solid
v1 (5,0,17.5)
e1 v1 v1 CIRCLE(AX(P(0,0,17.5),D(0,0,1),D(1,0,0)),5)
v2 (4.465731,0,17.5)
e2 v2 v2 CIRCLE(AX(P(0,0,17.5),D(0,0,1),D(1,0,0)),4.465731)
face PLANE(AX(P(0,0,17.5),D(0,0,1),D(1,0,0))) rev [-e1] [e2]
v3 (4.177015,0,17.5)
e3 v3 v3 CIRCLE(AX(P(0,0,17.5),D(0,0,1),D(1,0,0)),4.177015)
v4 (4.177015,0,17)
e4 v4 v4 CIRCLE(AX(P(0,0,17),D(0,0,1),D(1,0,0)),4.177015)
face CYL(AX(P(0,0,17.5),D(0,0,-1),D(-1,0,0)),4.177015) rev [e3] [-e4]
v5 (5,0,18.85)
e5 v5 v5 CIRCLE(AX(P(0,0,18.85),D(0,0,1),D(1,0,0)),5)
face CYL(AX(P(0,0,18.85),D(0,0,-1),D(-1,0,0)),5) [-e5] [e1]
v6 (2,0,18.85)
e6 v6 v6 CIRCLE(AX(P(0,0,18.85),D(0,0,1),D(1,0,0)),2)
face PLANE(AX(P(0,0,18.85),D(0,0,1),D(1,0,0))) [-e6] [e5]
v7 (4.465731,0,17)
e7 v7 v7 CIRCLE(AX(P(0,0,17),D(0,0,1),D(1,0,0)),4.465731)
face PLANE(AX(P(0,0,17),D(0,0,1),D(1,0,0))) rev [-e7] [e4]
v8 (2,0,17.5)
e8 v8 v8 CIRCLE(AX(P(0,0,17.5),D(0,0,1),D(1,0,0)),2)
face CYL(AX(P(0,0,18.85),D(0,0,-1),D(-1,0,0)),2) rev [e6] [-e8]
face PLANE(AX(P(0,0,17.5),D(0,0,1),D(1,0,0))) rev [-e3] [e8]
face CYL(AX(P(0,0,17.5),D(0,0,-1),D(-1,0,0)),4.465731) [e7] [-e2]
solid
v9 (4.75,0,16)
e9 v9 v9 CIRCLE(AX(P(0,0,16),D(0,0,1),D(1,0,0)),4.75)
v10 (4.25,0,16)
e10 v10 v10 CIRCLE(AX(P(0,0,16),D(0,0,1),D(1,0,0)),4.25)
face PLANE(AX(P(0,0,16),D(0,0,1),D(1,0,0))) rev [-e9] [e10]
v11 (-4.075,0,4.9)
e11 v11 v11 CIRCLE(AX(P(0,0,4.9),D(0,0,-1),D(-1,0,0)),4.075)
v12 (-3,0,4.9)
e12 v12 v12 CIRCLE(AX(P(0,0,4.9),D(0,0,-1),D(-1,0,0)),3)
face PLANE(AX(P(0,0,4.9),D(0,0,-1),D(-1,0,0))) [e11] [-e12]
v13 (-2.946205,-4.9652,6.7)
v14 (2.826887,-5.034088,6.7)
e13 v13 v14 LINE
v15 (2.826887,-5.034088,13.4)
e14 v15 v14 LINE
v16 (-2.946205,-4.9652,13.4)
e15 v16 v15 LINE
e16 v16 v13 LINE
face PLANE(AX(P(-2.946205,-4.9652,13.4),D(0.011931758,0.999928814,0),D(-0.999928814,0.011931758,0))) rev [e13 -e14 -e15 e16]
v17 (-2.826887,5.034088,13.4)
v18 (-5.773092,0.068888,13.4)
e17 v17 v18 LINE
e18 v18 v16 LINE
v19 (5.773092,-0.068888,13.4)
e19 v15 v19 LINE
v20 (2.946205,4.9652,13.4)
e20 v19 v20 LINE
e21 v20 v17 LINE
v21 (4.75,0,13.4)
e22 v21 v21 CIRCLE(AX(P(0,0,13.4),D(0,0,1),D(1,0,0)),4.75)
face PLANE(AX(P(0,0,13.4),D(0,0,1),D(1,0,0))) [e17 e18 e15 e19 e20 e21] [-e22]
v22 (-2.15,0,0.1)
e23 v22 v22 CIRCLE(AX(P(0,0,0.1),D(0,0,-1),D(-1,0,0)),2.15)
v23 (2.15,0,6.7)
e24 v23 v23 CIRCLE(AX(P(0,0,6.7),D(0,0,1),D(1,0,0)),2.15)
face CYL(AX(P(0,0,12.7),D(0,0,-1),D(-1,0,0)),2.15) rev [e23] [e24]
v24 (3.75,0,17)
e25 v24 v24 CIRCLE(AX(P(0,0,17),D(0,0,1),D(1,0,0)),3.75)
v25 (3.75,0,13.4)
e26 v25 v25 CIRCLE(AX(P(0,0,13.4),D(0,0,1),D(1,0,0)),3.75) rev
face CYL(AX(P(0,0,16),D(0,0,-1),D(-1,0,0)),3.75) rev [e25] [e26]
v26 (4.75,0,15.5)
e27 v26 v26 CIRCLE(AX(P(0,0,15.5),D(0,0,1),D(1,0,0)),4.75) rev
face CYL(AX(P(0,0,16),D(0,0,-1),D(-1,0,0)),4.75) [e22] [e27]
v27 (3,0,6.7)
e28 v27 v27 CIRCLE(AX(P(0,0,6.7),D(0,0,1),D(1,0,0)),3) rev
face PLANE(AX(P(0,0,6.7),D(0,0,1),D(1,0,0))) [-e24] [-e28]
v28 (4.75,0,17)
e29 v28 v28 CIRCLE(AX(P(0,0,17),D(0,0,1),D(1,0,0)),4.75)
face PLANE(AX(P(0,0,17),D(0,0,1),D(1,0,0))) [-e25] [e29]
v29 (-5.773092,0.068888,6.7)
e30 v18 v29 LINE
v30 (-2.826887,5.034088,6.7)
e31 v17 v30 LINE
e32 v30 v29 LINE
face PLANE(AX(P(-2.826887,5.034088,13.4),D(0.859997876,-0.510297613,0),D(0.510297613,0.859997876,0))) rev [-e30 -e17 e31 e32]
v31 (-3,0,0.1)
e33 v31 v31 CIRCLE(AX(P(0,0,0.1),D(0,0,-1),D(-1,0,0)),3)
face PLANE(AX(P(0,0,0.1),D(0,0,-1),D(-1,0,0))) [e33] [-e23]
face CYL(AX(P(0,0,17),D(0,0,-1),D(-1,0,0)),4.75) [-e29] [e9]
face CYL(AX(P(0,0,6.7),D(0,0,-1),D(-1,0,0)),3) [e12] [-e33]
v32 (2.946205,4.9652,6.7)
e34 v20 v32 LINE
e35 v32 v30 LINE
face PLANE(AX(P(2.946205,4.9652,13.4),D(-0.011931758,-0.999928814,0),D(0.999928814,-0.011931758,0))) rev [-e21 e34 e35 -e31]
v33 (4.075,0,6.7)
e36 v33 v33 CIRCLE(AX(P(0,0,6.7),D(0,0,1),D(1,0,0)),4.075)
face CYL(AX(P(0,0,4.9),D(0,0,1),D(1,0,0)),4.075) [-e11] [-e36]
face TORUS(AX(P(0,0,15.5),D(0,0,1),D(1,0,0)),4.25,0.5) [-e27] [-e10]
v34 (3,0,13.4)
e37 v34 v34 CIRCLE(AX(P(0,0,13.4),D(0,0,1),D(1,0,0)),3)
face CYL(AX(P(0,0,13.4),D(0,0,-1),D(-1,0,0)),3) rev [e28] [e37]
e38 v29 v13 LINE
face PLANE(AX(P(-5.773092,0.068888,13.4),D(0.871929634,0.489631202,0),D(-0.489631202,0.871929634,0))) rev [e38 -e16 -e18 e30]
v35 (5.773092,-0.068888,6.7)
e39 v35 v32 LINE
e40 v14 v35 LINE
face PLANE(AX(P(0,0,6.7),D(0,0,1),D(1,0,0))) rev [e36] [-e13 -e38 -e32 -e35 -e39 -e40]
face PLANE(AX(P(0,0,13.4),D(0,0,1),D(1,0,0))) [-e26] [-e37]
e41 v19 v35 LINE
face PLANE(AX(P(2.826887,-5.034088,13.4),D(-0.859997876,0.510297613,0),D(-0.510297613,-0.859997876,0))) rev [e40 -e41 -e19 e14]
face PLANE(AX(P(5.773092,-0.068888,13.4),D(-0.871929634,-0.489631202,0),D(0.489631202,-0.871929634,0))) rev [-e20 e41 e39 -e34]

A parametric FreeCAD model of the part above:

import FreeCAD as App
import Part
import Sketcher


def edges_at(feature, points):
    """Names of the edges that pass closest to the given points."""
    edges = feature.Shape.Edges
    near = lambda p: min(range(len(edges)), key=lambda i: edges[i].distToShape(Part.Vertex(*p))[0])
    return sorted({f"Edge{near(p) + 1}" for p in points})


def add_polygon(sketch, points):
    """Adds a closed chain of lines whose ends are joined by coincident constraints."""
    first, n = sketch.GeometryCount, len(points)
    for a, b in zip(points, points[1:] + points[:1]):
        sketch.addGeometry(Part.LineSegment(App.Vector(*a, 0), App.Vector(*b, 0)), False)
    for i in range(n):
        sketch.addConstraint(Sketcher.Constraint("Coincident", first + i, 2, first + (i + 1) % n, 1))

doc = App.newDocument("Part")
params = doc.addObject("Spreadsheet::Sheet", "Params")
for row, (alias, value) in enumerate([
    ("sketch1_diameter", "6 mm"),
    ("pad1_length", "6.7 mm"),
    ("sketch2_diameter", "6.4 mm"),
    ("pocket1_length", "0.1 mm"),
    ("sketch3_diameter", "4.3 mm"),
    ("pocket2_length", "12.6 mm"),
    ("sketch4_diameter", "6 mm"),
    ("pad2_length", "6.7 mm"),
    ("sketch5_diameter", "9.5 mm"),
    ("sketch5_diameter2", "7.5 mm"),
    ("pad3_length", "2.6 mm"),
    ("fillet_radius", "0.5 mm"),
    ("sketch6_diameter", "9.5 mm"),
    ("sketch6_diameter2", "7.5 mm"),
    ("pad4_length", "1 mm"),
    ("pad5_length", "0.5 mm"),
    ("sketch8_diameter", "10 mm"),
    ("sketch8_diameter2", "4 mm"),
    ("pad6_length", "1.35 mm"),
    ("sketch9_diameter", "6 mm"),
    ("sketch9_diameter2", "8.15 mm"),
    ("pad7_length", "1.8 mm"),
], start=1):
    params.set(f"A{row}", alias)
    params.set(f"B{row}", "=" + value)
    params.setAlias(f"B{row}", alias)

body = doc.addObject("PartDesign::Body", "Body")

# Sketch on XY plane
sketch1 = doc.addObject("Sketcher::SketchObject", "Sketch")
body.addObject(sketch1)
sketch1.AttachmentSupport = (doc.XY_Plane, [""])
sketch1.MapMode = "FlatFace"
sketch1.addGeometry(Part.Circle(App.Vector(0, 0, 0), App.Vector(0, 0, 1), 3), False)
sketch1.addConstraint([
    Sketcher.Constraint("Coincident", 0, 3, -1, 1),
    Sketcher.Constraint("Diameter", 0, 6.0),
])
sketch1.setExpression("Constraints[1]", "Params.sketch1_diameter")
pad1 = doc.addObject("PartDesign::Pad", "Pad")
body.addObject(pad1)
pad1.Profile = sketch1
pad1.setExpression("Length", "Params.pad1_length")

# Sketch on XY plane
sketch2 = doc.addObject("Sketcher::SketchObject", "Sketch001")
body.addObject(sketch2)
sketch2.AttachmentSupport = (doc.XY_Plane, [""])
sketch2.MapMode = "FlatFace"
sketch2.addGeometry(Part.Circle(App.Vector(0, 0, 0), App.Vector(0, 0, 1), 3.2), False)
sketch2.addConstraint([
    Sketcher.Constraint("Coincident", 0, 3, -1, 1),
    Sketcher.Constraint("Diameter", 0, 6.4),
])
sketch2.setExpression("Constraints[1]", "Params.sketch2_diameter")
pocket1 = doc.addObject("PartDesign::Pocket", "Pocket")
body.addObject(pocket1)
pocket1.Profile = sketch2
pocket1.setExpression("Length", "Params.pocket1_length")
pocket1.Reversed = True

# Sketch on XY plane
sketch3 = doc.addObject("Sketcher::SketchObject", "Sketch002")
body.addObject(sketch3)
sketch3.AttachmentSupport = (doc.XY_Plane, [""])
sketch3.MapMode = "FlatFace"
sketch3.AttachmentOffset = App.Placement(App.Vector(0, 0, 0.1), App.Rotation())
sketch3.addGeometry(Part.Circle(App.Vector(0, 0, 0), App.Vector(0, 0, 1), 2.1), False)
sketch3.addConstraint([
    Sketcher.Constraint("Coincident", 0, 3, -1, 1),
    Sketcher.Constraint("Diameter", 0, 4.3),
])
sketch3.setExpression("Constraints[1]", "Params.sketch3_diameter")
pocket2 = doc.addObject("PartDesign::Pocket", "Pocket001")
body.addObject(pocket2)
pocket2.Profile = sketch3
pocket2.setExpression("Length", "Params.pocket2_length")
pocket2.Reversed = True
body2 = doc.addObject("PartDesign::Body", "Body001")

# Sketch on XY plane
sketch4 = doc.addObject("Sketcher::SketchObject", "Sketch003")
body2.addObject(sketch4)
sketch4.AttachmentSupport = (doc.getObject("XY_Plane001"), [""])
sketch4.MapMode = "FlatFace"
sketch4.AttachmentOffset = App.Placement(App.Vector(0, 0, 6.7), App.Rotation())
add_polygon(sketch4, [(2.8, -5), (5.8, -0.1), (2.9, 5), (-2.8, 5), (-5.8, 0.1), (-2.9, -5)])  # lines 0-5
sketch4.addGeometry(Part.Circle(App.Vector(0, 0, 0), App.Vector(0, 0, 1), 3), False)  # 6
sketch4.addConstraint([
    Sketcher.Constraint("Coincident", 6, 3, -1, 1),
    Sketcher.Constraint("Symmetric", 0, 2, 3, 2, -1, 1),
    Sketcher.Constraint("Symmetric", 1, 2, 4, 2, -1, 1),
    Sketcher.Constraint("Symmetric", 2, 2, 5, 2, -1, 1),
    Sketcher.Constraint("Equal", 0, 1),
    Sketcher.Constraint("Equal", 1, 2),
    Sketcher.Constraint("Diameter", 6, 6.0),
    Sketcher.Constraint("DistanceY", -1, 1, 1, 2, 4.9652),
    Sketcher.Constraint("DistanceY", 3, 2, 2, 2, 4.9652),
    Sketcher.Constraint("DistanceX", -1, 1, 0, 2, 5.773092),
    Sketcher.Constraint("DistanceY", 0, 2, -1, 1, 0.068888),
])
sketch4.setExpression("Constraints[12]", "Params.sketch4_diameter")
pad2 = doc.addObject("PartDesign::Pad", "Pad001")
body2.addObject(pad2)
pad2.Profile = sketch4
pad2.setExpression("Length", "Params.pad2_length")

# Sketch on XY plane
sketch5 = doc.addObject("Sketcher::SketchObject", "Sketch004")
body2.addObject(sketch5)
sketch5.AttachmentSupport = (doc.getObject("XY_Plane001"), [""])
sketch5.MapMode = "FlatFace"
sketch5.AttachmentOffset = App.Placement(App.Vector(0, 0, 13.4), App.Rotation())
sketch5.addGeometry([
    Part.Circle(App.Vector(0, 0, 0), App.Vector(0, 0, 1), 4.8),
    Part.Circle(App.Vector(0, 0, 0), App.Vector(0, 0, 1), 3.8),
], False)
sketch5.addConstraint([
    Sketcher.Constraint("Coincident", 0, 3, -1, 1),
    Sketcher.Constraint("Coincident", 1, 3, -1, 1),
    Sketcher.Constraint("Diameter", 0, 9.5),
    Sketcher.Constraint("Diameter", 1, 7.5),
])
sketch5.setExpression("Constraints[2]", "Params.sketch5_diameter")
sketch5.setExpression("Constraints[3]", "Params.sketch5_diameter2")
pad3 = doc.addObject("PartDesign::Pad", "Pad002")
body2.addObject(pad3)
pad3.Profile = sketch5
pad3.setExpression("Length", "Params.pad3_length")
doc.recompute()

fillet = doc.addObject("PartDesign::Fillet", "Fillet")
body2.addObject(fillet)
fillet.Base = (pad3, edges_at(pad3, [(-4.75, 0, 16)]))
fillet.setExpression("Radius", "Params.fillet_radius")

# Sketch on XY plane
sketch6 = doc.addObject("Sketcher::SketchObject", "Sketch005")
body2.addObject(sketch6)
sketch6.AttachmentSupport = (doc.getObject("XY_Plane001"), [""])
sketch6.MapMode = "FlatFace"
sketch6.AttachmentOffset = App.Placement(App.Vector(0, 0, 16), App.Rotation())
sketch6.addGeometry([
    Part.Circle(App.Vector(0, 0, 0), App.Vector(0, 0, 1), 4.8),
    Part.Circle(App.Vector(0, 0, 0), App.Vector(0, 0, 1), 3.8),
], False)
sketch6.addConstraint([
    Sketcher.Constraint("Coincident", 0, 3, -1, 1),
    Sketcher.Constraint("Coincident", 1, 3, -1, 1),
    Sketcher.Constraint("Diameter", 0, 9.5),
    Sketcher.Constraint("Diameter", 1, 7.5),
])
sketch6.setExpression("Constraints[2]", "Params.sketch6_diameter")
sketch6.setExpression("Constraints[3]", "Params.sketch6_diameter2")
pad4 = doc.addObject("PartDesign::Pad", "Pad003")
body2.addObject(pad4)
pad4.Profile = sketch6
pad4.setExpression("Length", "Params.pad4_length")
body3 = doc.addObject("PartDesign::Body", "Body002")

# Sketch on XY plane
sketch7 = doc.addObject("Sketcher::SketchObject", "Sketch006")
body3.addObject(sketch7)
sketch7.AttachmentSupport = (doc.getObject("XY_Plane002"), [""])
sketch7.MapMode = "FlatFace"
sketch7.AttachmentOffset = App.Placement(App.Vector(0, 0, 17), App.Rotation())
sketch7.addGeometry([
    Part.Circle(App.Vector(0, 0, 0), App.Vector(0, 0, 1), 4.5),
    Part.Circle(App.Vector(0, 0, 0), App.Vector(0, 0, 1), 4.2),
], False)
sketch7.addConstraint([
    Sketcher.Constraint("Coincident", 0, 3, -1, 1),
    Sketcher.Constraint("Coincident", 1, 3, -1, 1),
    Sketcher.Constraint("Diameter", 0, 8.931462),
    Sketcher.Constraint("Diameter", 1, 8.35403),
])
pad5 = doc.addObject("PartDesign::Pad", "Pad004")
body3.addObject(pad5)
pad5.Profile = sketch7
pad5.setExpression("Length", "Params.pad5_length")

# Sketch on XY plane
sketch8 = doc.addObject("Sketcher::SketchObject", "Sketch007")
body3.addObject(sketch8)
sketch8.AttachmentSupport = (doc.getObject("XY_Plane002"), [""])
sketch8.MapMode = "FlatFace"
sketch8.AttachmentOffset = App.Placement(App.Vector(0, 0, 17.5), App.Rotation())
sketch8.addGeometry([
    Part.Circle(App.Vector(0, 0, 0), App.Vector(0, 0, 1), 5),
    Part.Circle(App.Vector(0, 0, 0), App.Vector(0, 0, 1), 2),
], False)
sketch8.addConstraint([
    Sketcher.Constraint("Coincident", 0, 3, -1, 1),
    Sketcher.Constraint("Coincident", 1, 3, -1, 1),
    Sketcher.Constraint("Diameter", 0, 10.0),
    Sketcher.Constraint("Diameter", 1, 4.0),
])
sketch8.setExpression("Constraints[2]", "Params.sketch8_diameter")
sketch8.setExpression("Constraints[3]", "Params.sketch8_diameter2")
pad6 = doc.addObject("PartDesign::Pad", "Pad005")
body3.addObject(pad6)
pad6.Profile = sketch8
pad6.setExpression("Length", "Params.pad6_length")
body.AllowCompound = True
doc.recompute()

boolean = doc.addObject("PartDesign::Boolean", "Boolean")
body.addObject(boolean)
boolean.Type = "Fuse"
boolean.addObjects([body2])

# Sketch on XY plane
sketch9 = doc.addObject("Sketcher::SketchObject", "Sketch008")
body.addObject(sketch9)
sketch9.AttachmentSupport = (doc.XY_Plane, [""])
sketch9.MapMode = "FlatFace"
sketch9.AttachmentOffset = App.Placement(App.Vector(0, 0, 6.7), App.Rotation())
sketch9.addGeometry([
    Part.Circle(App.Vector(0, 0, 0), App.Vector(0, 0, 1), 4.1),
    Part.Circle(App.Vector(0, 0, 0), App.Vector(0, 0, 1), 3),
], False)
sketch9.addConstraint([
    Sketcher.Constraint("Coincident", 0, 3, -1, 1),
    Sketcher.Constraint("Coincident", 1, 3, -1, 1),
    Sketcher.Constraint("Diameter", 1, 6.0),
    Sketcher.Constraint("Diameter", 0, 8.15),
])
sketch9.setExpression("Constraints[2]", "Params.sketch9_diameter")
sketch9.setExpression("Constraints[3]", "Params.sketch9_diameter2")
pad7 = doc.addObject("PartDesign::Pad", "Pad006")
body.addObject(pad7)
pad7.Profile = sketch9
pad7.setExpression("Length", "Params.pad7_length")
pad7.Reversed = True

doc.recompute()
